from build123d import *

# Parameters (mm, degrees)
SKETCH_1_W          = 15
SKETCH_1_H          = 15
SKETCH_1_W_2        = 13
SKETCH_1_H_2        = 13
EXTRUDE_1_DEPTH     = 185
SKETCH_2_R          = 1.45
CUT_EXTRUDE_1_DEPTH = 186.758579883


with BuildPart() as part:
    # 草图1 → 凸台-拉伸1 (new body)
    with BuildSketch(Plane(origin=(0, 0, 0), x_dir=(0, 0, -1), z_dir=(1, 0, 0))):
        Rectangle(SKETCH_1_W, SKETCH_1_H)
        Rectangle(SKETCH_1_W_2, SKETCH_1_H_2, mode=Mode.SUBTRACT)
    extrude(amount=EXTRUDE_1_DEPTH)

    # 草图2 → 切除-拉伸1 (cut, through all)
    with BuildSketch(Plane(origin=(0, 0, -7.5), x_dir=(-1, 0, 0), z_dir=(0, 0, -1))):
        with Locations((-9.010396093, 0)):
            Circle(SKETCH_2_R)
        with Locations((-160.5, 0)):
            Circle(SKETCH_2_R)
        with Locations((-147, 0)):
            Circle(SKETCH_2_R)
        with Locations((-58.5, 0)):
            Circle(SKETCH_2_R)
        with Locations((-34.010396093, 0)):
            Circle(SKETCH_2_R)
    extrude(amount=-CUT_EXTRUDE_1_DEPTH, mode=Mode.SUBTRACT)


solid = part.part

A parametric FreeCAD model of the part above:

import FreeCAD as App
import Part
import Sketcher
from FreeCAD import Vector

doc = App.newDocument("Part")
body = doc.addObject("PartDesign::Body", "Body")

sketch1 = doc.addObject("Sketcher::SketchObject", "Sketch")
body.addObject(sketch1)
sketch1.AttachmentSupport = (doc.YZ_Plane, [""])
sketch1.MapMode = "FlatFace"
sketch1.addGeometry([
    Part.LineSegment(Vector(8, 8, 0), Vector(-8, 8, 0)),
    Part.LineSegment(Vector(-8, 8, 0), Vector(-8, -8, 0)),
    Part.LineSegment(Vector(-8, -8, 0), Vector(8, -8, 0)),
    Part.LineSegment(Vector(8, -8, 0), Vector(8, 8, 0)),
    Part.LineSegment(Vector(-6, -6, 0), Vector(-6, 6, 0)),
    Part.LineSegment(Vector(-6, 6, 0), Vector(6, 6, 0)),
    Part.LineSegment(Vector(6, 6, 0), Vector(6, -6, 0)),
    Part.LineSegment(Vector(6, -6, 0), Vector(-6, -6, 0)),
], False)
sketch1.addConstraint([
    Sketcher.Constraint("Coincident", 0, 2, 1, 1),
    Sketcher.Constraint("Coincident", 1, 2, 2, 1),
    Sketcher.Constraint("Coincident", 2, 2, 3, 1),
    Sketcher.Constraint("Coincident", 3, 2, 0, 1),
    Sketcher.Constraint("Coincident", 4, 2, 5, 1),
    Sketcher.Constraint("Coincident", 5, 2, 6, 1),
    Sketcher.Constraint("Coincident", 6, 2, 7, 1),
    Sketcher.Constraint("Coincident", 7, 2, 4, 1),
    Sketcher.Constraint("Horizontal", 0),
    Sketcher.Constraint("Vertical", 1),
    Sketcher.Constraint("Horizontal", 2),
    Sketcher.Constraint("Vertical", 3),
    Sketcher.Constraint("Vertical", 4),
    Sketcher.Constraint("Horizontal", 5),
    Sketcher.Constraint("Vertical", 6),
    Sketcher.Constraint("Horizontal", 7),
    Sketcher.Constraint("Symmetric", 0, 2, 2, 2, -1, 1),
    Sketcher.Constraint("Symmetric", 4, 2, 6, 2, -1, 1),
    Sketcher.Constraint("Equal", 2, 1),
    Sketcher.Constraint("Equal", 7, 4),
    Sketcher.Constraint("DistanceX", 0, 2, 0, 1, 15.0),
    Sketcher.Constraint("DistanceX", 5, 1, 5, 2, 13.0),
])
pad1 = doc.addObject("PartDesign::Pad", "Pad")
body.addObject(pad1)
pad1.Profile = sketch1
pad1.Length = 185

sketch2 = doc.addObject("Sketcher::SketchObject", "Sketch001")
body.addObject(sketch2)
sketch2.AttachmentSupport = (doc.XY_Plane, [""])
sketch2.MapMode = "FlatFace"
sketch2.AttachmentOffset = App.Placement(Vector(0, 0, -7.5), App.Rotation())
sketch2.addGeometry([
    Part.Circle(Vector(9, 0, 0), Vector(0, 0, 1), 1.4),
    Part.Circle(Vector(160.5, 0, 0), Vector(0, 0, 1), 1.4),
    Part.Circle(Vector(147, 0, 0), Vector(0, 0, 1), 1.4),
    Part.Circle(Vector(58.5, 0, 0), Vector(0, 0, 1), 1.4),
    Part.Circle(Vector(34, 0, 0), Vector(0, 0, 1), 1.4),
], False)
sketch2.addConstraint([
    Sketcher.Constraint("Equal", 0, 1),
    Sketcher.Constraint("Equal", 1, 2),
    Sketcher.Constraint("Equal", 2, 3),
    Sketcher.Constraint("Equal", 3, 4),
    Sketcher.Constraint("PointOnObject", 0, 3, -1),
    Sketcher.Constraint("PointOnObject", 1, 3, -1),
    Sketcher.Constraint("PointOnObject", 2, 3, -1),
    Sketcher.Constraint("PointOnObject", 3, 3, -1),
    Sketcher.Constraint("PointOnObject", 4, 3, -1),
    Sketcher.Constraint("Diameter", 0, 2.9),
    Sketcher.Constraint("DistanceX", -1, 1, 2, 3, 147.0),
    Sketcher.Constraint("DistanceX", 3, 3, 1, 3, 102.0),
    Sketcher.Constraint("DistanceX", 0, 3, 4, 3, 25.0),
    Sketcher.Constraint("DistanceX", -1, 1, 1, 3, 160.5),
    Sketcher.Constraint("DistanceX", -1, 1, 0, 3, 9.010396),
])
pocket1 = doc.addObject("PartDesign::Pocket", "Pocket")
body.addObject(pocket1)
pocket1.Profile = sketch2
pocket1.Type = "ThroughAll"
pocket1.Reversed = True

doc.recompute()
